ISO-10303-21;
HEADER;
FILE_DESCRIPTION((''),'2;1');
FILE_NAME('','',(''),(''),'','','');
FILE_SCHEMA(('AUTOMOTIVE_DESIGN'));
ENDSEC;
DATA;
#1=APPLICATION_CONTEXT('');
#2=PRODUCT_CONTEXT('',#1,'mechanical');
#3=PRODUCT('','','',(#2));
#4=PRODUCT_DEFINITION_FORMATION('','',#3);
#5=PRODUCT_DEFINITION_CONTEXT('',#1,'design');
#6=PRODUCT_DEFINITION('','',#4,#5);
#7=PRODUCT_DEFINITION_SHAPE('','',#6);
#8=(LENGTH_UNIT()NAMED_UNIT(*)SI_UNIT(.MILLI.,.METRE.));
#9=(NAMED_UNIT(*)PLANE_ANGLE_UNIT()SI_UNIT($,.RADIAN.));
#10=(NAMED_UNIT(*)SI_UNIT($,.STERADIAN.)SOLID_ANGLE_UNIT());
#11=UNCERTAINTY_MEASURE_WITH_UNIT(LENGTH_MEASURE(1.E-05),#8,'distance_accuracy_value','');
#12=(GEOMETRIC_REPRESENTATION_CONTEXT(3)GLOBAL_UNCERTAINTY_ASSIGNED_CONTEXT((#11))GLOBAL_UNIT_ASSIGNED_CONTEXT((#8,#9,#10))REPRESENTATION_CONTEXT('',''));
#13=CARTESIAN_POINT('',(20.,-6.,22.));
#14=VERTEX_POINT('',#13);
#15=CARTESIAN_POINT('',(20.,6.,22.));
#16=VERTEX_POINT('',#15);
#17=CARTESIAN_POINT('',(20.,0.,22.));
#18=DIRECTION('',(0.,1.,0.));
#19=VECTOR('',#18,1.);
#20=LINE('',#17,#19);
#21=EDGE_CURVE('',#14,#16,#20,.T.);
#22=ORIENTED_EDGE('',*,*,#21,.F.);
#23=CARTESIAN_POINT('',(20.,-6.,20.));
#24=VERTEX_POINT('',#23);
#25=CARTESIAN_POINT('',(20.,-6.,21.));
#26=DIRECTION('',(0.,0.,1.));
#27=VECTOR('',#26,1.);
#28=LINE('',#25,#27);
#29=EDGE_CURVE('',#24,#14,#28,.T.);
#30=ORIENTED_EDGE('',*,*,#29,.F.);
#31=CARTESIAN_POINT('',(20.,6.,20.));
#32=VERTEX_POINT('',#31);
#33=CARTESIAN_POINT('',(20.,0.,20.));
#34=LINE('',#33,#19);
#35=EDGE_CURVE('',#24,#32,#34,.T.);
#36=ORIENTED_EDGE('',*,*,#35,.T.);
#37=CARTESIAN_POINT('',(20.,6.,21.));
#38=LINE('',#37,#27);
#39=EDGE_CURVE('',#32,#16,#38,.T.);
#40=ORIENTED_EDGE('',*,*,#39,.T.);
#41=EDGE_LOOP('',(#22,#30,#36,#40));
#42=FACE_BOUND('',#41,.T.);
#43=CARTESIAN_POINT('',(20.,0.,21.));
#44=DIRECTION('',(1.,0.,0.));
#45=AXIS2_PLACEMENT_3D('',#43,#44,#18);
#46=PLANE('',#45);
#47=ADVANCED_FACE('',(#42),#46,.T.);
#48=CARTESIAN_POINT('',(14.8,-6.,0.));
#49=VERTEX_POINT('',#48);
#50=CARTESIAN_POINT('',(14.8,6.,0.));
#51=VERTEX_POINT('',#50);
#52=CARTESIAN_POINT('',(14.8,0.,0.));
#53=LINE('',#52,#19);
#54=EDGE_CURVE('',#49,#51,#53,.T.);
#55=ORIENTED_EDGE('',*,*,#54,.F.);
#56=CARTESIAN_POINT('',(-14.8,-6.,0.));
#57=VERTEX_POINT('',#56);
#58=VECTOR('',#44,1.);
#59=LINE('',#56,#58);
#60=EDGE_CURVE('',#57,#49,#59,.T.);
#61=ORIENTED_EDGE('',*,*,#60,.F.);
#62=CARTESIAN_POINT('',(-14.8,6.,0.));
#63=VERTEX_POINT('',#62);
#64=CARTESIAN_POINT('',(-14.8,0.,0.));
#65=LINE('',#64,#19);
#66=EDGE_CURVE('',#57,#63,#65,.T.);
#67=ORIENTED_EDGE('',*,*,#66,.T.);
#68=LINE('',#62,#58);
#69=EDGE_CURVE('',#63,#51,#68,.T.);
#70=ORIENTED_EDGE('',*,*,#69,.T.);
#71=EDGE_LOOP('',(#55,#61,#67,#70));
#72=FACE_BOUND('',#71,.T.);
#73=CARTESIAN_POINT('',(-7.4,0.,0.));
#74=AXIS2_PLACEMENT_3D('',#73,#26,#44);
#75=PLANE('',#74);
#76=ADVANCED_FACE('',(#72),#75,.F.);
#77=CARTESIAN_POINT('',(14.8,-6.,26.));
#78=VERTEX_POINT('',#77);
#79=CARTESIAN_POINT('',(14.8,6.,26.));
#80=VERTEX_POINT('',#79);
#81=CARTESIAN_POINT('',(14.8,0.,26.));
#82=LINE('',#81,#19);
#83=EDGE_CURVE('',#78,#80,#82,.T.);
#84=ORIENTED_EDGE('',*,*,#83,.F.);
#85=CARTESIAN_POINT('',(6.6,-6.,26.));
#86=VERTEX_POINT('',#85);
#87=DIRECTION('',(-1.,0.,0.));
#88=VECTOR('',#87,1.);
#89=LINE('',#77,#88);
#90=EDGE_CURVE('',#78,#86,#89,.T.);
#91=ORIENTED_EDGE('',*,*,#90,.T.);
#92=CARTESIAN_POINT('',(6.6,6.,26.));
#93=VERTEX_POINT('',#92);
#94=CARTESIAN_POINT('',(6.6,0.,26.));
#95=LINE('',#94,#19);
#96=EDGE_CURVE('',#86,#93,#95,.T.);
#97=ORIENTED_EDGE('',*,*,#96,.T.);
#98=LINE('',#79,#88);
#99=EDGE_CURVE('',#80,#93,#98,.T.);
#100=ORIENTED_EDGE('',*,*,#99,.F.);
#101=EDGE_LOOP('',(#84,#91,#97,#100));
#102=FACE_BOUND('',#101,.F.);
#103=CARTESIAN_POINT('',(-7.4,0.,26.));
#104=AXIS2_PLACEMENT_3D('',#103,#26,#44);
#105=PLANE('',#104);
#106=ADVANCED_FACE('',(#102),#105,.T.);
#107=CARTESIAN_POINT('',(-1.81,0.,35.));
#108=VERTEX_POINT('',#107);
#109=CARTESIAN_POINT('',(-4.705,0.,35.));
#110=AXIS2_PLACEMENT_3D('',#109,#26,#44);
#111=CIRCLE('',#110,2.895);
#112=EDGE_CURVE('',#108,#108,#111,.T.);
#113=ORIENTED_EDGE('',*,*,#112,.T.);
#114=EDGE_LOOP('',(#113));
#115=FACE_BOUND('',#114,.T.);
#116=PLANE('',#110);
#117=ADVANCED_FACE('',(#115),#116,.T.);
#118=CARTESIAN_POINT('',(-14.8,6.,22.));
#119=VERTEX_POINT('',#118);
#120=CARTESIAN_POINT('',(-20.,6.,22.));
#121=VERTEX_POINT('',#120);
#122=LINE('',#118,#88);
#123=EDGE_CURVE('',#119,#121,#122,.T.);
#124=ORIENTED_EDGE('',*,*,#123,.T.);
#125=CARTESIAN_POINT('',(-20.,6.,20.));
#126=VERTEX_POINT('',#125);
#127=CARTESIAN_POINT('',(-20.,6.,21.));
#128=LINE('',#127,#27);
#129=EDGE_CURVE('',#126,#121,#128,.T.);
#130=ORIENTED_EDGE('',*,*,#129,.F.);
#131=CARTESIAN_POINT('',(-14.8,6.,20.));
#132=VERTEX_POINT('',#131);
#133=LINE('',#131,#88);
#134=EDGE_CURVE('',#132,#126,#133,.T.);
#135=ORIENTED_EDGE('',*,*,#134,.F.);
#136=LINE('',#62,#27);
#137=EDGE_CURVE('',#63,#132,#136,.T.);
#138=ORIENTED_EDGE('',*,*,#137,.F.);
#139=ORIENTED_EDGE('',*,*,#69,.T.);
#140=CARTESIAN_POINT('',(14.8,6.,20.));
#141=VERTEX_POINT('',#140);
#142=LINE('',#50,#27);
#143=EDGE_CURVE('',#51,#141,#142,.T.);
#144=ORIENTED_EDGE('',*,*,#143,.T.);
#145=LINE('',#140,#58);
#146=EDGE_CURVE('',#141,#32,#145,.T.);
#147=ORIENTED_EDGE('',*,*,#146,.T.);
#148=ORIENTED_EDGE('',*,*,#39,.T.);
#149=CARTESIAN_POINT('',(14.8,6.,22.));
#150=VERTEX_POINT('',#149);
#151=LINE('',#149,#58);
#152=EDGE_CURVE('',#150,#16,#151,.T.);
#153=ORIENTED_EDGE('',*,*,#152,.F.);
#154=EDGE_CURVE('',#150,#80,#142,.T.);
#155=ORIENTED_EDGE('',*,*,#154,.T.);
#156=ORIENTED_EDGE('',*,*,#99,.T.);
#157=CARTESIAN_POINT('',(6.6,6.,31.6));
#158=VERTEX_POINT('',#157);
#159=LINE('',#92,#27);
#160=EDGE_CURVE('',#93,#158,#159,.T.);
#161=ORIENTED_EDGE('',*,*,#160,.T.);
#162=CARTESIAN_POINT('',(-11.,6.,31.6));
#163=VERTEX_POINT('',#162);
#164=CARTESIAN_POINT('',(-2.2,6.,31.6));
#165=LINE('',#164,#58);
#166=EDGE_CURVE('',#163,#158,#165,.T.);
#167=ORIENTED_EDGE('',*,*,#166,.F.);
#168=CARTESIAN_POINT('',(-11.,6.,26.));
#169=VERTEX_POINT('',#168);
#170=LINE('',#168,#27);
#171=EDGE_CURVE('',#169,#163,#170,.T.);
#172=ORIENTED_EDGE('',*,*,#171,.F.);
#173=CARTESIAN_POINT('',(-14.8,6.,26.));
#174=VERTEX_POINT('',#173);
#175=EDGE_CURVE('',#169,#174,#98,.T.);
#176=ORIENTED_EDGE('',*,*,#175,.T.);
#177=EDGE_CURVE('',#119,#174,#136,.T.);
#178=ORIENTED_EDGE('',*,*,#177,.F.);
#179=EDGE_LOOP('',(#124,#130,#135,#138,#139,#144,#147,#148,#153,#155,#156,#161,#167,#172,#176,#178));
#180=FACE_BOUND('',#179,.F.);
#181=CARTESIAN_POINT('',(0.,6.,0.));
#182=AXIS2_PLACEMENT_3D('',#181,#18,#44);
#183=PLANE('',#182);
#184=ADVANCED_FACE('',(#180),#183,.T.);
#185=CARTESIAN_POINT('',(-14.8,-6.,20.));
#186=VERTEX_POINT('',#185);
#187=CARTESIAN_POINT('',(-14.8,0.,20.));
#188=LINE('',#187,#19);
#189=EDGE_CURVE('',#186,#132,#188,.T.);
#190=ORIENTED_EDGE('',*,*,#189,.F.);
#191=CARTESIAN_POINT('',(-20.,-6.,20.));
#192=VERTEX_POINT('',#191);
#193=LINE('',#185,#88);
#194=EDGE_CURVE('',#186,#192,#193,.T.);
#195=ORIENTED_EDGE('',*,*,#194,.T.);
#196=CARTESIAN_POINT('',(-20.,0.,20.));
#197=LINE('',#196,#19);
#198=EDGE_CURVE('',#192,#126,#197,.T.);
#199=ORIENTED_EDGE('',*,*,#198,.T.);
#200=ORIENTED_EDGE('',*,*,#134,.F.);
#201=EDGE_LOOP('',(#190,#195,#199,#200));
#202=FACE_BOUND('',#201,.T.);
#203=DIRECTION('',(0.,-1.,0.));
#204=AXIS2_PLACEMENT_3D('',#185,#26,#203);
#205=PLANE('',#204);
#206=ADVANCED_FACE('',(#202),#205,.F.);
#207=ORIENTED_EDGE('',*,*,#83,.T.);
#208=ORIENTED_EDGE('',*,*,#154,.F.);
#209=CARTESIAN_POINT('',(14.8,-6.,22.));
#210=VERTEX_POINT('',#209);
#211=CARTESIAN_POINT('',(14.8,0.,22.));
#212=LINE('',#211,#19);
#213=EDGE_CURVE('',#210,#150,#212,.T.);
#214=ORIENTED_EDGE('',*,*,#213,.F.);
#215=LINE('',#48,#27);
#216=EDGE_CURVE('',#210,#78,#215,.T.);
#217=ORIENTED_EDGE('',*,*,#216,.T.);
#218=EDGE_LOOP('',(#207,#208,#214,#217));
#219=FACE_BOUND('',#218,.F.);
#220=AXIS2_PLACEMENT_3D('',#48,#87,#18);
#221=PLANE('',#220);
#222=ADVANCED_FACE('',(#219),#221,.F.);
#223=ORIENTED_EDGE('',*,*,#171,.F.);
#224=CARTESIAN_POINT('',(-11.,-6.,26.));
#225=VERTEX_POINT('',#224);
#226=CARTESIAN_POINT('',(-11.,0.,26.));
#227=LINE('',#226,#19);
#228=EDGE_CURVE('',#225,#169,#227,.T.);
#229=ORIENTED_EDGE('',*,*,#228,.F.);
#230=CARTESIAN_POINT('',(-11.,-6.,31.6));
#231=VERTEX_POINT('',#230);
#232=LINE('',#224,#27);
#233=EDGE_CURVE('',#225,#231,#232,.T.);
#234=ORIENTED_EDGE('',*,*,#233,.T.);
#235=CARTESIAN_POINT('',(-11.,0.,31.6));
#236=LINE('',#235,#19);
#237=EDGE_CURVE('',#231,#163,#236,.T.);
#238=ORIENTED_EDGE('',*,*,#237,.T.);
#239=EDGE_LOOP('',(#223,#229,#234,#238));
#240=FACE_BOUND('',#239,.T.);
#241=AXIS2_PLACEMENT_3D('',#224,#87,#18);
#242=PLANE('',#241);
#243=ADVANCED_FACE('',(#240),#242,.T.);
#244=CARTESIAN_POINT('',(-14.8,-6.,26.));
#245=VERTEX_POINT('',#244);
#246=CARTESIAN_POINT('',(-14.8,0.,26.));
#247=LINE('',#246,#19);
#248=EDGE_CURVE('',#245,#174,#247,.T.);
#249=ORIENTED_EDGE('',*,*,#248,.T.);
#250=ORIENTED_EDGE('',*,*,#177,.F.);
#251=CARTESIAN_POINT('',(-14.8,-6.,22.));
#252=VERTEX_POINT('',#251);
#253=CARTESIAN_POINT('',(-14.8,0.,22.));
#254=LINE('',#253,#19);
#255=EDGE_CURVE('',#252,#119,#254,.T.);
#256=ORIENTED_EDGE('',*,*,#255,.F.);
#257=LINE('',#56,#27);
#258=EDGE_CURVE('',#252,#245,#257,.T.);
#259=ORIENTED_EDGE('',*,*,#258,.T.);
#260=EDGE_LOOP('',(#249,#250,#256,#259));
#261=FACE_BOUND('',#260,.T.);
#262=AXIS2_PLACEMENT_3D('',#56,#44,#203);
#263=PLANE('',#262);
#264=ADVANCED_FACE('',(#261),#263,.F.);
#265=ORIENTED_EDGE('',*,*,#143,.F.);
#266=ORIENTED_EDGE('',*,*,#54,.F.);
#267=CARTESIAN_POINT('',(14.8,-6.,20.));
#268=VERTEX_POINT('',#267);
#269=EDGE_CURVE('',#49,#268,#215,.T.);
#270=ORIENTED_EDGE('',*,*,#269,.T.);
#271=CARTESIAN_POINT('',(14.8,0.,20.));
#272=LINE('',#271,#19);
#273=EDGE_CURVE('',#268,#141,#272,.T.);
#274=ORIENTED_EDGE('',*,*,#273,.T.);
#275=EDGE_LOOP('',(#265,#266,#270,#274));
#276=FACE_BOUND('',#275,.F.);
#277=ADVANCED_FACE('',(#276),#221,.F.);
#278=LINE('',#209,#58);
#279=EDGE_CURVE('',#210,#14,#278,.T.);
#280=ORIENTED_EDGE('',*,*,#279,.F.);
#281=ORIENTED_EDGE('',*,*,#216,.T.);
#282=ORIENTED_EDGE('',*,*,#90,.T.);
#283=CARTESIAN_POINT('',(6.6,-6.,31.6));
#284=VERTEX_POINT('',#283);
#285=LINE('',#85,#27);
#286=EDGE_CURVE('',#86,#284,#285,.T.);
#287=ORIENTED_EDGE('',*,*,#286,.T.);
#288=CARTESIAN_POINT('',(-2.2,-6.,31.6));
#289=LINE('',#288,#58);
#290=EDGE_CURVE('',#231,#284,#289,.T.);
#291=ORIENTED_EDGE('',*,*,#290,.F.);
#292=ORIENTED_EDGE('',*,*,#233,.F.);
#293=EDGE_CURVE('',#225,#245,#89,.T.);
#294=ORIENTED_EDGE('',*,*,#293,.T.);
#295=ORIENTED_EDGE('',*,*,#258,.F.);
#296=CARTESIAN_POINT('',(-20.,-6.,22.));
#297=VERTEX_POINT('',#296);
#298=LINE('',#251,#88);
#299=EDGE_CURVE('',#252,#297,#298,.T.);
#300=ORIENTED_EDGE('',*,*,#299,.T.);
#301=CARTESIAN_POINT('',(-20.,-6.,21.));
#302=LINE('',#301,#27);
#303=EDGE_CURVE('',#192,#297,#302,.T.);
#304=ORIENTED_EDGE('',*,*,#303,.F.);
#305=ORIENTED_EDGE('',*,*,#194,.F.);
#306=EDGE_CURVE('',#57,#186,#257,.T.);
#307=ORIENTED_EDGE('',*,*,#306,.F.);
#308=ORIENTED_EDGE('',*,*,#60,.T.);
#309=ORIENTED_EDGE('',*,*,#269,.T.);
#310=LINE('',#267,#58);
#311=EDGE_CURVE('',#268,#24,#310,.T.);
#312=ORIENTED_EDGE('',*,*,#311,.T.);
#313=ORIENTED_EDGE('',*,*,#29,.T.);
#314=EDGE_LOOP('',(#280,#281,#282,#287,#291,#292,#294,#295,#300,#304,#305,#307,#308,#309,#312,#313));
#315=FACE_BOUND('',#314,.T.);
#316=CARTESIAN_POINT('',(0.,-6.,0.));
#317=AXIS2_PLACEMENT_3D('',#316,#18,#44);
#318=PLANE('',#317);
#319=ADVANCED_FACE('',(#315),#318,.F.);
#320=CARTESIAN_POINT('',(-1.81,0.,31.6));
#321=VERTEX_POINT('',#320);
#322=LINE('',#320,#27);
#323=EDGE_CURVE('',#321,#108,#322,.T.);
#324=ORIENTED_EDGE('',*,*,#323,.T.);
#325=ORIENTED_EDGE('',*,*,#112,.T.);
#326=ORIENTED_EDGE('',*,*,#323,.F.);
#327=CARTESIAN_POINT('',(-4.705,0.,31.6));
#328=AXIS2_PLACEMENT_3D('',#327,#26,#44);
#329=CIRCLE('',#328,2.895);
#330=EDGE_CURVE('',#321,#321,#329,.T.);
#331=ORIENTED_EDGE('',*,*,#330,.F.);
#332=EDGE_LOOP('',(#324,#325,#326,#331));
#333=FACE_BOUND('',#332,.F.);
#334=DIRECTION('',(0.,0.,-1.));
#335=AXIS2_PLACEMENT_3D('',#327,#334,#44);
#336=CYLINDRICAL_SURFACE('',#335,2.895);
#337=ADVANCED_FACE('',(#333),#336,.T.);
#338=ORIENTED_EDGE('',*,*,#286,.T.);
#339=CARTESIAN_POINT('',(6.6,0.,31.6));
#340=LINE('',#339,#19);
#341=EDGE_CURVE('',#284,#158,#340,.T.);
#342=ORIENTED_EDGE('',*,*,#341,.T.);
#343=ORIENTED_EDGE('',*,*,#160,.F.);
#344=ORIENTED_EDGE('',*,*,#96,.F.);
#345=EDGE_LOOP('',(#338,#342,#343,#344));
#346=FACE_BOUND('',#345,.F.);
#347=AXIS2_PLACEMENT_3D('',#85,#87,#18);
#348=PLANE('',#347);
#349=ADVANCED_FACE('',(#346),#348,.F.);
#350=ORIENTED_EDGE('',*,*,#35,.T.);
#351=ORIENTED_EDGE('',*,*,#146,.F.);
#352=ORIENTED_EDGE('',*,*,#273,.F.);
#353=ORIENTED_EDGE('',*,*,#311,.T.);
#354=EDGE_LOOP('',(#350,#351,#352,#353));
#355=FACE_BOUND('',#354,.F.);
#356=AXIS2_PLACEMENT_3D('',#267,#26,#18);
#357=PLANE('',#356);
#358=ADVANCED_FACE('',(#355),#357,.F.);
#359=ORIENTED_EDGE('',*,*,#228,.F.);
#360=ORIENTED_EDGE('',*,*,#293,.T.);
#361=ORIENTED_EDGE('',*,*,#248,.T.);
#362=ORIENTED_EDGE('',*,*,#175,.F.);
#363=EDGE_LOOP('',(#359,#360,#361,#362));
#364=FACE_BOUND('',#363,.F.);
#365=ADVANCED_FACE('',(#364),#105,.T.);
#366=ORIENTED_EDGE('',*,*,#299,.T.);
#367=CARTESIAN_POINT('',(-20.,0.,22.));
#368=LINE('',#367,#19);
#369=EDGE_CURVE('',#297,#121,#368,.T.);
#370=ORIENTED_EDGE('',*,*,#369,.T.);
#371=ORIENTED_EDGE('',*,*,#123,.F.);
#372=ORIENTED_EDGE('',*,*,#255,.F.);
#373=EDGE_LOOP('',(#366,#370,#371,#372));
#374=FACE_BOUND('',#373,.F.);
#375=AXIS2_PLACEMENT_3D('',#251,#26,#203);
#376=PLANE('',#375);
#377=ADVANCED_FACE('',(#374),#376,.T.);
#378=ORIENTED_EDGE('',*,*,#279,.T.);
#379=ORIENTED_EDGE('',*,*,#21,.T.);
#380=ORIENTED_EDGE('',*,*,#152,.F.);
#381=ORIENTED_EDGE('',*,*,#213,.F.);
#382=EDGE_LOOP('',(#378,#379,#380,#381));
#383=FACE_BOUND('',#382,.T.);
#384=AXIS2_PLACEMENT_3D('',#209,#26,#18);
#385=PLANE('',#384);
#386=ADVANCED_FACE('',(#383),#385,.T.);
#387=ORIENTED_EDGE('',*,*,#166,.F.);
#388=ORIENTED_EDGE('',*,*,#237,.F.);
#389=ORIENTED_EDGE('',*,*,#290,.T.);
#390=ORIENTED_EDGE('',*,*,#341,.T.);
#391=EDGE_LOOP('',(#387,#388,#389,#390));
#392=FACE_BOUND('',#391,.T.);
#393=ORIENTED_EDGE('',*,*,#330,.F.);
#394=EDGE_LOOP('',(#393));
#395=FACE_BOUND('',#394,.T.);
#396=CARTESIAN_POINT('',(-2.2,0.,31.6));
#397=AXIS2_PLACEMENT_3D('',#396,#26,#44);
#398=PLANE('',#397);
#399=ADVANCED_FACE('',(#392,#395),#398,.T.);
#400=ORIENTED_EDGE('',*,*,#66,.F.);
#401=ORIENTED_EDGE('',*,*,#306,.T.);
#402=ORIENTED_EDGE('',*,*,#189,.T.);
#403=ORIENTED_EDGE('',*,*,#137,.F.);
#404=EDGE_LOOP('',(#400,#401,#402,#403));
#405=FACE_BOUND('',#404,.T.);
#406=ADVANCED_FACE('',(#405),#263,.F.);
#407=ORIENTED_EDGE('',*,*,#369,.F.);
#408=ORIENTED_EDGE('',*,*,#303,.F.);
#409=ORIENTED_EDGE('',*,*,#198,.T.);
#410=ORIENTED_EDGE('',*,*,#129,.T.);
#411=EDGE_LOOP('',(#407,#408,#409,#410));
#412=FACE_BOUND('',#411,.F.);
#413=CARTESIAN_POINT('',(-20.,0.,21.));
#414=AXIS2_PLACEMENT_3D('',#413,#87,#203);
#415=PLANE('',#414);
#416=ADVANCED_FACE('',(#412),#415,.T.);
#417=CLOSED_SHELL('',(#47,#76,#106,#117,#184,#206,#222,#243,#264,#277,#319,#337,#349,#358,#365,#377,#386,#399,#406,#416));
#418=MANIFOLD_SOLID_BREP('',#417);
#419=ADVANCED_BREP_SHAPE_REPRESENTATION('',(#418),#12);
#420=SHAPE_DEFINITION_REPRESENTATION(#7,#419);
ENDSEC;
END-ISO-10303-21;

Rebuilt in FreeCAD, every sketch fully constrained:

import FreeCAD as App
import Part
import Sketcher

V = App.Vector
Q = App.Units.Quantity


def add_polygon(sketch, points):
    """Adds a closed chain of lines whose ends are joined by coincident constraints."""
    first, n = sketch.GeometryCount, len(points)
    for a, b in zip(points, points[1:] + points[:1]):
        sketch.addGeometry(Part.LineSegment(App.Vector(*a, 0), App.Vector(*b, 0)), False)
    for i in range(n):
        sketch.addConstraint(Sketcher.Constraint("Coincident", first + i, 2, first + (i + 1) % n, 1))

doc = App.newDocument("Part")
params = doc.addObject("Spreadsheet::Sheet", "Params")
for row, (alias, value) in enumerate([
    ("sketch1_height", "12 mm"),
    ("sketch1_width", "14.8 mm"),
    ("pad1_length", "26 mm"),
    ("sketch2_width", "12 mm"),
    ("sketch2_height", "2 mm"),
    ("pad2_length", "5.2 mm"),
    ("sketch3_height", "12 mm"),
    ("sketch3_width", "17.6 mm"),
    ("pad3_length", "5.6 mm"),
    ("sketch4_diameter", "5.79 mm"),
    ("pad4_length", "3.4 mm"),
], start=1):
    params.set(f"A{row}", alias)
    params.set(f"B{row}", "=" + value)
    params.setAlias(f"B{row}", alias)

body = doc.addObject("PartDesign::Body", "Body")

sketch1 = body.newObject("Sketcher::SketchObject", "Sketch")
sketch1.AttachmentSupport = (doc.getObject("XY_Plane"), [""])
sketch1.MapMode = "FlatFace"
add_polygon(sketch1, [(0, 6), (0, -6), (15, -6), (15, 6)])
sketch1.addConstraint(Sketcher.Constraint("Vertical", 0))
sketch1.addConstraint(Sketcher.Constraint("Horizontal", 1))
sketch1.addConstraint(Sketcher.Constraint("Vertical", 2))
sketch1.addConstraint(Sketcher.Constraint("Horizontal", 3))
sketch1.addConstraint(Sketcher.Constraint("Symmetric", 0, 2, 3, 2, -1, 1))
sketch1.addConstraint(Sketcher.Constraint("DistanceY", 0, 2, 0, 1, Q("12 mm")))
sketch1.addConstraint(Sketcher.Constraint("DistanceX", 1, 1, 1, 2, Q("14.8 mm")))
sketch1.setExpression("Constraints[9]", "Params.sketch1_height")
sketch1.setExpression("Constraints[10]", "Params.sketch1_width")
pad1 = body.newObject("PartDesign::Pad", "Pad")
pad1.Profile = sketch1
pad1.setExpression("Length", "Params.pad1_length")

sketch2 = body.newObject("Sketcher::SketchObject", "Sketch001")
sketch2.AttachmentSupport = (doc.getObject("YZ_Plane"), [""])
sketch2.MapMode = "FlatFace"
sketch2.AttachmentOffset = App.Placement(V(0, 0, 14.8), App.Rotation())
add_polygon(sketch2, [(-6, 22), (-6, 20), (6, 20), (6, 22)])
sketch2.addConstraint(Sketcher.Constraint("Vertical", 0))
sketch2.addConstraint(Sketcher.Constraint("Horizontal", 1))
sketch2.addConstraint(Sketcher.Constraint("Vertical", 2))
sketch2.addConstraint(Sketcher.Constraint("Horizontal", 3))
sketch2.addConstraint(Sketcher.Constraint("DistanceX", 1, 1, 1, 2, Q("12 mm")))
sketch2.addConstraint(Sketcher.Constraint("DistanceY", 0, 2, 0, 1, Q("2 mm")))
sketch2.addConstraint(Sketcher.Constraint("DistanceX", 0, 2, -1, 1, Q("6 mm")))
sketch2.addConstraint(Sketcher.Constraint("DistanceY", -1, 1, 0, 2, Q("20 mm")))
sketch2.setExpression("Constraints[8]", "Params.sketch2_width")
sketch2.setExpression("Constraints[9]", "Params.sketch2_height")
pad2 = body.newObject("PartDesign::Pad", "Pad001")
pad2.Profile = sketch2
pad2.setExpression("Length", "Params.pad2_length")
body2 = doc.addObject("PartDesign::Body", "Body001")
doc.recompute()

body2.BaseFeature = body
doc.recompute()

mirroring = doc.addObject("Part::Mirroring", "Mirroring")
mirroring.Source = body
mirroring.Base = V(0, 0, 0)
mirroring.Normal = V(1, 0, 0)
body3 = doc.addObject("PartDesign::Body", "Body002")
body3.BaseFeature = mirroring
boolean = body2.newObject("PartDesign::Boolean", "Boolean")
boolean.Type = "Fuse"
boolean.addObjects([body3])
doc.recompute()

sketch3 = body2.newObject("Sketcher::SketchObject", "Sketch002")
sketch3.AttachmentSupport = (doc.getObject("XY_Plane001"), [""])
sketch3.MapMode = "FlatFace"
sketch3.AttachmentOffset = App.Placement(V(0, 0, 26), App.Rotation())
add_polygon(sketch3, [(-11, 6), (-11, -6), (7, -6), (7, 6)])
sketch3.addConstraint(Sketcher.Constraint("Vertical", 0))
sketch3.addConstraint(Sketcher.Constraint("Horizontal", 1))
sketch3.addConstraint(Sketcher.Constraint("Vertical", 2))
sketch3.addConstraint(Sketcher.Constraint("Horizontal", 3))
sketch3.addConstraint(Sketcher.Constraint("DistanceY", 0, 2, 0, 1, Q("12 mm")))
sketch3.addConstraint(Sketcher.Constraint("DistanceX", 1, 1, 1, 2, Q("17.6 mm")))
sketch3.addConstraint(Sketcher.Constraint("DistanceX", 0, 2, -1, 1, Q("11 mm")))
sketch3.addConstraint(Sketcher.Constraint("DistanceY", 0, 2, -1, 1, Q("6 mm")))
sketch3.setExpression("Constraints[8]", "Params.sketch3_height")
sketch3.setExpression("Constraints[9]", "Params.sketch3_width")
pad3 = body2.newObject("PartDesign::Pad", "Pad002")
pad3.Profile = sketch3
pad3.setExpression("Length", "Params.pad3_length")

sketch4 = body2.newObject("Sketcher::SketchObject", "Sketch003")
sketch4.AttachmentSupport = (doc.getObject("XY_Plane001"), [""])
sketch4.MapMode = "FlatFace"
sketch4.AttachmentOffset = App.Placement(V(0, 0, 31.6), App.Rotation())
sketch4.addGeometry(Part.Circle(V(-4.7, 0, 0), V(0, 0, 1), 2.9), False)
sketch4.addConstraint(Sketcher.Constraint("PointOnObject", 0, 3, -1))
sketch4.addConstraint(Sketcher.Constraint("Diameter", 0, Q("5.79 mm")))
sketch4.addConstraint(Sketcher.Constraint("DistanceX", 0, 3, -1, 1, Q("4.705 mm")))
sketch4.setExpression("Constraints[1]", "Params.sketch4_diameter")
pad4 = body2.newObject("PartDesign::Pad", "Pad003")
pad4.Profile = sketch4
pad4.setExpression("Length", "Params.pad4_length")
mirroring.Visibility = False

doc.recompute()
